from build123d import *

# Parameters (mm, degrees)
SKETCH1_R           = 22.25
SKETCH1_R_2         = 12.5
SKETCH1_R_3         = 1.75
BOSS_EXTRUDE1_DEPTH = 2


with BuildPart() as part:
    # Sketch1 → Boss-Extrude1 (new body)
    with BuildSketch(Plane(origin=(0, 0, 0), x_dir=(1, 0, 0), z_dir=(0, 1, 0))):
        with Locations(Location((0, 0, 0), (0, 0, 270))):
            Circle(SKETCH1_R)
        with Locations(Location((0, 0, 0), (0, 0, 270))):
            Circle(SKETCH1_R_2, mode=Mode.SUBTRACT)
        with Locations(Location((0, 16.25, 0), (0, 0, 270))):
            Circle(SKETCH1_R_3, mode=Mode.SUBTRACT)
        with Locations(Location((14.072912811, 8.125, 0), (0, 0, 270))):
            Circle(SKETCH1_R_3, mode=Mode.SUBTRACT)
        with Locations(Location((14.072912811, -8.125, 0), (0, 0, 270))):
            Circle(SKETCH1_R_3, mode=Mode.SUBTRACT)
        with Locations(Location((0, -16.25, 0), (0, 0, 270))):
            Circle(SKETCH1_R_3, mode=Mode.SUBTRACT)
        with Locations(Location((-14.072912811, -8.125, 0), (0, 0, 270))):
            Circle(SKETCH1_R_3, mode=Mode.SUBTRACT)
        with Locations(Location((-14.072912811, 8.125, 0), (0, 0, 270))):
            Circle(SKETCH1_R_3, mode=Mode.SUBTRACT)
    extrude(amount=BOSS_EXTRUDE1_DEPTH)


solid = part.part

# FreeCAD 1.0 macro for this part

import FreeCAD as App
import Part
import Sketcher

V = App.Vector
Q = App.Units.Quantity

doc = App.newDocument("Part")
body = doc.addObject("PartDesign::Body", "Body")

sketch1 = body.newObject("Sketcher::SketchObject", "Sketch")
sketch1.AttachmentSupport = (doc.getObject("XZ_Plane"), [""])
sketch1.MapMode = "FlatFace"
sketch1.addGeometry([
    Part.Circle(V(0, 0, 0), V(0, 0, 1), 22.2),
    Part.Circle(V(-14.1, -8.1, 0), V(0, 0, 1), 1.8),
    Part.Circle(V(0, -16.2, 0), V(0, 0, 1), 1.8),
    Part.Circle(V(-14.1, 8.1, 0), V(0, 0, 1), 1.8),
    Part.Circle(V(14.1, -8.1, 0), V(0, 0, 1), 1.8),
    Part.Circle(V(0, 0, 0), V(0, 0, 1), 12.5),
    Part.Circle(V(0, 16.2, 0), V(0, 0, 1), 1.8),
    Part.Circle(V(14.1, 8.1, 0), V(0, 0, 1), 1.8),
], False)
sketch1.addConstraint([
    Sketcher.Constraint("Coincident", 0, 3, -1, 1),
    Sketcher.Constraint("Coincident", 5, 3, -1, 1),
    Sketcher.Constraint("Equal", 1, 2),
    Sketcher.Constraint("Equal", 2, 3),
    Sketcher.Constraint("Equal", 3, 4),
    Sketcher.Constraint("Equal", 4, 6),
    Sketcher.Constraint("Equal", 6, 7),
    Sketcher.Constraint("Symmetric", 3, 3, 4, 3, -1, 1),
    Sketcher.Constraint("Symmetric", 2, 3, 6, 3, -1, 1),
    Sketcher.Constraint("Symmetric", 1, 3, 7, 3, -1, 1),
    Sketcher.Constraint("Symmetric", 1, 3, 4, 3, -2),
    Sketcher.Constraint("PointOnObject", 2, 3, -2),
    Sketcher.Constraint("Diameter", 5, Q("25 mm")),
    Sketcher.Constraint("Diameter", 0, Q("44.5 mm")),
    Sketcher.Constraint("Diameter", 1, Q("3.5 mm")),
    Sketcher.Constraint("DistanceY", 2, 3, -1, 1, Q("16.25 mm")),
    Sketcher.Constraint("DistanceY", 1, 3, 3, 3, Q("16.25 mm")),
    Sketcher.Constraint("DistanceX", 1, 3, -1, 1, Q("14.072913 mm")),
])
pad1 = body.newObject("PartDesign::Pad", "Pad")
pad1.Profile = sketch1
pad1.Length = 2
pad1.Reversed = True

doc.recompute()
